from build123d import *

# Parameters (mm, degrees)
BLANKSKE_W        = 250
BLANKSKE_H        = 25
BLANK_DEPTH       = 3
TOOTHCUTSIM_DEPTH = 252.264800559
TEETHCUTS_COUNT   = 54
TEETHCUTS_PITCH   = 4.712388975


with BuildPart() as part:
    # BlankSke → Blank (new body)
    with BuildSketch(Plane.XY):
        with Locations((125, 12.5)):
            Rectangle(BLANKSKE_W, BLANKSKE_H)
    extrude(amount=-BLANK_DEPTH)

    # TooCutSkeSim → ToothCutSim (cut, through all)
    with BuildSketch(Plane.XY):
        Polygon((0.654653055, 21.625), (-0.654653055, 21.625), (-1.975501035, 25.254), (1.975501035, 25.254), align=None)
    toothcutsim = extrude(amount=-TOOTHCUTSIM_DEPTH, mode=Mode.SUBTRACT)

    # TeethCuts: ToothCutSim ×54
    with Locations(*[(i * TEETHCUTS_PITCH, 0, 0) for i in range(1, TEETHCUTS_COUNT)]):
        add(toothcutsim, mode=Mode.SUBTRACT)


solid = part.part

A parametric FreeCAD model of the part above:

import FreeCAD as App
import Part
import Sketcher
Q = App.Units.Quantity

doc = App.newDocument("Part")
body = doc.addObject("PartDesign::Body", "Body")

# Sketch on XY plane
sketch1 = body.newObject("Sketcher::SketchObject", "Sketch")
sketch1.AttachmentSupport = (doc.getObject("XY_Plane"), [""])
sketch1.MapMode = "FlatFace"
sketch1.addGeometry(Part.LineSegment(App.Vector(0, 25, 0), App.Vector(0, 0, 0)), False)
sketch1.addGeometry(Part.LineSegment(App.Vector(0, 0, 0), App.Vector(250, 0, 0)), False)
sketch1.addGeometry(Part.LineSegment(App.Vector(250, 0, 0), App.Vector(250, 25, 0)), False)
sketch1.addGeometry(Part.LineSegment(App.Vector(250, 25, 0), App.Vector(0, 25, 0)), False)
sketch1.addConstraint(Sketcher.Constraint("Coincident", 0, 2, 1, 1))
sketch1.addConstraint(Sketcher.Constraint("Coincident", 1, 2, 2, 1))
sketch1.addConstraint(Sketcher.Constraint("Coincident", 2, 2, 3, 1))
sketch1.addConstraint(Sketcher.Constraint("Coincident", 3, 2, 0, 1))
sketch1.addConstraint(Sketcher.Constraint("Vertical", 0))
sketch1.addConstraint(Sketcher.Constraint("Horizontal", 1))
sketch1.addConstraint(Sketcher.Constraint("Vertical", 2))
sketch1.addConstraint(Sketcher.Constraint("Horizontal", 3))
sketch1.addConstraint(Sketcher.Constraint("Coincident", 0, 2, -1, 1))
sketch1.addConstraint(Sketcher.Constraint("DistanceX", 1, 1, 1, 2, Q("250 mm")))
sketch1.addConstraint(Sketcher.Constraint("DistanceY", 0, 2, 0, 1, Q("25 mm")))
pad1 = body.newObject("PartDesign::Pad", "Pad")
pad1.Profile = sketch1
pad1.Length = 3
pad1.Reversed = True

# Sketch on XY plane
sketch2 = body.newObject("Sketcher::SketchObject", "Sketch001")
sketch2.AttachmentSupport = (doc.getObject("XY_Plane"), [""])
sketch2.MapMode = "FlatFace"
sketch2.addGeometry(Part.LineSegment(App.Vector(-0.7, 21.6, 0), App.Vector(0.7, 21.6, 0)), False)
sketch2.addGeometry(Part.LineSegment(App.Vector(0.7, 21.6, 0), App.Vector(2, 25.3, 0)), False)
sketch2.addGeometry(Part.LineSegment(App.Vector(2, 25.3, 0), App.Vector(-2, 25.3, 0)), False)
sketch2.addGeometry(Part.LineSegment(App.Vector(-2, 25.3, 0), App.Vector(-0.7, 21.6, 0)), False)
sketch2.addConstraint(Sketcher.Constraint("Coincident", 0, 2, 1, 1))
sketch2.addConstraint(Sketcher.Constraint("Coincident", 1, 2, 2, 1))
sketch2.addConstraint(Sketcher.Constraint("Coincident", 2, 2, 3, 1))
sketch2.addConstraint(Sketcher.Constraint("Coincident", 3, 2, 0, 1))
sketch2.addConstraint(Sketcher.Constraint("Horizontal", 0))
sketch2.addConstraint(Sketcher.Constraint("Horizontal", 2))
sketch2.addConstraint(Sketcher.Constraint("Equal", 1, 3))
sketch2.addConstraint(Sketcher.Constraint("Angle", 1, Q("70 deg")))
sketch2.addConstraint(Sketcher.Constraint("DistanceY", -1, 1, 0, 2, Q("21.625 mm")))
sketch2.addConstraint(Sketcher.Constraint("DistanceY", -1, 1, 1, 2, Q("25.254 mm")))
sketch2.addConstraint(Sketcher.Constraint("DistanceX", -1, 1, 1, 2, Q("1.975501 mm")))
sketch2.addConstraint(Sketcher.Constraint("DistanceX", 2, 2, -1, 1, Q("1.975501 mm")))
pocket1 = body.newObject("PartDesign::Pocket", "Pocket")
pocket1.Profile = sketch2
pocket1.Type = "ThroughAll"
doc.recompute()

linearpattern = body.newObject("PartDesign::LinearPattern", "LinearPattern")
linearpattern.Originals = [pocket1]
linearpattern.Direction = (doc.getObject("X_Axis"), [""])
linearpattern.Mode = "offset"
linearpattern.Offset = 4.712389
linearpattern.Occurrences = 54
body.Tip = linearpattern

doc.recompute()
